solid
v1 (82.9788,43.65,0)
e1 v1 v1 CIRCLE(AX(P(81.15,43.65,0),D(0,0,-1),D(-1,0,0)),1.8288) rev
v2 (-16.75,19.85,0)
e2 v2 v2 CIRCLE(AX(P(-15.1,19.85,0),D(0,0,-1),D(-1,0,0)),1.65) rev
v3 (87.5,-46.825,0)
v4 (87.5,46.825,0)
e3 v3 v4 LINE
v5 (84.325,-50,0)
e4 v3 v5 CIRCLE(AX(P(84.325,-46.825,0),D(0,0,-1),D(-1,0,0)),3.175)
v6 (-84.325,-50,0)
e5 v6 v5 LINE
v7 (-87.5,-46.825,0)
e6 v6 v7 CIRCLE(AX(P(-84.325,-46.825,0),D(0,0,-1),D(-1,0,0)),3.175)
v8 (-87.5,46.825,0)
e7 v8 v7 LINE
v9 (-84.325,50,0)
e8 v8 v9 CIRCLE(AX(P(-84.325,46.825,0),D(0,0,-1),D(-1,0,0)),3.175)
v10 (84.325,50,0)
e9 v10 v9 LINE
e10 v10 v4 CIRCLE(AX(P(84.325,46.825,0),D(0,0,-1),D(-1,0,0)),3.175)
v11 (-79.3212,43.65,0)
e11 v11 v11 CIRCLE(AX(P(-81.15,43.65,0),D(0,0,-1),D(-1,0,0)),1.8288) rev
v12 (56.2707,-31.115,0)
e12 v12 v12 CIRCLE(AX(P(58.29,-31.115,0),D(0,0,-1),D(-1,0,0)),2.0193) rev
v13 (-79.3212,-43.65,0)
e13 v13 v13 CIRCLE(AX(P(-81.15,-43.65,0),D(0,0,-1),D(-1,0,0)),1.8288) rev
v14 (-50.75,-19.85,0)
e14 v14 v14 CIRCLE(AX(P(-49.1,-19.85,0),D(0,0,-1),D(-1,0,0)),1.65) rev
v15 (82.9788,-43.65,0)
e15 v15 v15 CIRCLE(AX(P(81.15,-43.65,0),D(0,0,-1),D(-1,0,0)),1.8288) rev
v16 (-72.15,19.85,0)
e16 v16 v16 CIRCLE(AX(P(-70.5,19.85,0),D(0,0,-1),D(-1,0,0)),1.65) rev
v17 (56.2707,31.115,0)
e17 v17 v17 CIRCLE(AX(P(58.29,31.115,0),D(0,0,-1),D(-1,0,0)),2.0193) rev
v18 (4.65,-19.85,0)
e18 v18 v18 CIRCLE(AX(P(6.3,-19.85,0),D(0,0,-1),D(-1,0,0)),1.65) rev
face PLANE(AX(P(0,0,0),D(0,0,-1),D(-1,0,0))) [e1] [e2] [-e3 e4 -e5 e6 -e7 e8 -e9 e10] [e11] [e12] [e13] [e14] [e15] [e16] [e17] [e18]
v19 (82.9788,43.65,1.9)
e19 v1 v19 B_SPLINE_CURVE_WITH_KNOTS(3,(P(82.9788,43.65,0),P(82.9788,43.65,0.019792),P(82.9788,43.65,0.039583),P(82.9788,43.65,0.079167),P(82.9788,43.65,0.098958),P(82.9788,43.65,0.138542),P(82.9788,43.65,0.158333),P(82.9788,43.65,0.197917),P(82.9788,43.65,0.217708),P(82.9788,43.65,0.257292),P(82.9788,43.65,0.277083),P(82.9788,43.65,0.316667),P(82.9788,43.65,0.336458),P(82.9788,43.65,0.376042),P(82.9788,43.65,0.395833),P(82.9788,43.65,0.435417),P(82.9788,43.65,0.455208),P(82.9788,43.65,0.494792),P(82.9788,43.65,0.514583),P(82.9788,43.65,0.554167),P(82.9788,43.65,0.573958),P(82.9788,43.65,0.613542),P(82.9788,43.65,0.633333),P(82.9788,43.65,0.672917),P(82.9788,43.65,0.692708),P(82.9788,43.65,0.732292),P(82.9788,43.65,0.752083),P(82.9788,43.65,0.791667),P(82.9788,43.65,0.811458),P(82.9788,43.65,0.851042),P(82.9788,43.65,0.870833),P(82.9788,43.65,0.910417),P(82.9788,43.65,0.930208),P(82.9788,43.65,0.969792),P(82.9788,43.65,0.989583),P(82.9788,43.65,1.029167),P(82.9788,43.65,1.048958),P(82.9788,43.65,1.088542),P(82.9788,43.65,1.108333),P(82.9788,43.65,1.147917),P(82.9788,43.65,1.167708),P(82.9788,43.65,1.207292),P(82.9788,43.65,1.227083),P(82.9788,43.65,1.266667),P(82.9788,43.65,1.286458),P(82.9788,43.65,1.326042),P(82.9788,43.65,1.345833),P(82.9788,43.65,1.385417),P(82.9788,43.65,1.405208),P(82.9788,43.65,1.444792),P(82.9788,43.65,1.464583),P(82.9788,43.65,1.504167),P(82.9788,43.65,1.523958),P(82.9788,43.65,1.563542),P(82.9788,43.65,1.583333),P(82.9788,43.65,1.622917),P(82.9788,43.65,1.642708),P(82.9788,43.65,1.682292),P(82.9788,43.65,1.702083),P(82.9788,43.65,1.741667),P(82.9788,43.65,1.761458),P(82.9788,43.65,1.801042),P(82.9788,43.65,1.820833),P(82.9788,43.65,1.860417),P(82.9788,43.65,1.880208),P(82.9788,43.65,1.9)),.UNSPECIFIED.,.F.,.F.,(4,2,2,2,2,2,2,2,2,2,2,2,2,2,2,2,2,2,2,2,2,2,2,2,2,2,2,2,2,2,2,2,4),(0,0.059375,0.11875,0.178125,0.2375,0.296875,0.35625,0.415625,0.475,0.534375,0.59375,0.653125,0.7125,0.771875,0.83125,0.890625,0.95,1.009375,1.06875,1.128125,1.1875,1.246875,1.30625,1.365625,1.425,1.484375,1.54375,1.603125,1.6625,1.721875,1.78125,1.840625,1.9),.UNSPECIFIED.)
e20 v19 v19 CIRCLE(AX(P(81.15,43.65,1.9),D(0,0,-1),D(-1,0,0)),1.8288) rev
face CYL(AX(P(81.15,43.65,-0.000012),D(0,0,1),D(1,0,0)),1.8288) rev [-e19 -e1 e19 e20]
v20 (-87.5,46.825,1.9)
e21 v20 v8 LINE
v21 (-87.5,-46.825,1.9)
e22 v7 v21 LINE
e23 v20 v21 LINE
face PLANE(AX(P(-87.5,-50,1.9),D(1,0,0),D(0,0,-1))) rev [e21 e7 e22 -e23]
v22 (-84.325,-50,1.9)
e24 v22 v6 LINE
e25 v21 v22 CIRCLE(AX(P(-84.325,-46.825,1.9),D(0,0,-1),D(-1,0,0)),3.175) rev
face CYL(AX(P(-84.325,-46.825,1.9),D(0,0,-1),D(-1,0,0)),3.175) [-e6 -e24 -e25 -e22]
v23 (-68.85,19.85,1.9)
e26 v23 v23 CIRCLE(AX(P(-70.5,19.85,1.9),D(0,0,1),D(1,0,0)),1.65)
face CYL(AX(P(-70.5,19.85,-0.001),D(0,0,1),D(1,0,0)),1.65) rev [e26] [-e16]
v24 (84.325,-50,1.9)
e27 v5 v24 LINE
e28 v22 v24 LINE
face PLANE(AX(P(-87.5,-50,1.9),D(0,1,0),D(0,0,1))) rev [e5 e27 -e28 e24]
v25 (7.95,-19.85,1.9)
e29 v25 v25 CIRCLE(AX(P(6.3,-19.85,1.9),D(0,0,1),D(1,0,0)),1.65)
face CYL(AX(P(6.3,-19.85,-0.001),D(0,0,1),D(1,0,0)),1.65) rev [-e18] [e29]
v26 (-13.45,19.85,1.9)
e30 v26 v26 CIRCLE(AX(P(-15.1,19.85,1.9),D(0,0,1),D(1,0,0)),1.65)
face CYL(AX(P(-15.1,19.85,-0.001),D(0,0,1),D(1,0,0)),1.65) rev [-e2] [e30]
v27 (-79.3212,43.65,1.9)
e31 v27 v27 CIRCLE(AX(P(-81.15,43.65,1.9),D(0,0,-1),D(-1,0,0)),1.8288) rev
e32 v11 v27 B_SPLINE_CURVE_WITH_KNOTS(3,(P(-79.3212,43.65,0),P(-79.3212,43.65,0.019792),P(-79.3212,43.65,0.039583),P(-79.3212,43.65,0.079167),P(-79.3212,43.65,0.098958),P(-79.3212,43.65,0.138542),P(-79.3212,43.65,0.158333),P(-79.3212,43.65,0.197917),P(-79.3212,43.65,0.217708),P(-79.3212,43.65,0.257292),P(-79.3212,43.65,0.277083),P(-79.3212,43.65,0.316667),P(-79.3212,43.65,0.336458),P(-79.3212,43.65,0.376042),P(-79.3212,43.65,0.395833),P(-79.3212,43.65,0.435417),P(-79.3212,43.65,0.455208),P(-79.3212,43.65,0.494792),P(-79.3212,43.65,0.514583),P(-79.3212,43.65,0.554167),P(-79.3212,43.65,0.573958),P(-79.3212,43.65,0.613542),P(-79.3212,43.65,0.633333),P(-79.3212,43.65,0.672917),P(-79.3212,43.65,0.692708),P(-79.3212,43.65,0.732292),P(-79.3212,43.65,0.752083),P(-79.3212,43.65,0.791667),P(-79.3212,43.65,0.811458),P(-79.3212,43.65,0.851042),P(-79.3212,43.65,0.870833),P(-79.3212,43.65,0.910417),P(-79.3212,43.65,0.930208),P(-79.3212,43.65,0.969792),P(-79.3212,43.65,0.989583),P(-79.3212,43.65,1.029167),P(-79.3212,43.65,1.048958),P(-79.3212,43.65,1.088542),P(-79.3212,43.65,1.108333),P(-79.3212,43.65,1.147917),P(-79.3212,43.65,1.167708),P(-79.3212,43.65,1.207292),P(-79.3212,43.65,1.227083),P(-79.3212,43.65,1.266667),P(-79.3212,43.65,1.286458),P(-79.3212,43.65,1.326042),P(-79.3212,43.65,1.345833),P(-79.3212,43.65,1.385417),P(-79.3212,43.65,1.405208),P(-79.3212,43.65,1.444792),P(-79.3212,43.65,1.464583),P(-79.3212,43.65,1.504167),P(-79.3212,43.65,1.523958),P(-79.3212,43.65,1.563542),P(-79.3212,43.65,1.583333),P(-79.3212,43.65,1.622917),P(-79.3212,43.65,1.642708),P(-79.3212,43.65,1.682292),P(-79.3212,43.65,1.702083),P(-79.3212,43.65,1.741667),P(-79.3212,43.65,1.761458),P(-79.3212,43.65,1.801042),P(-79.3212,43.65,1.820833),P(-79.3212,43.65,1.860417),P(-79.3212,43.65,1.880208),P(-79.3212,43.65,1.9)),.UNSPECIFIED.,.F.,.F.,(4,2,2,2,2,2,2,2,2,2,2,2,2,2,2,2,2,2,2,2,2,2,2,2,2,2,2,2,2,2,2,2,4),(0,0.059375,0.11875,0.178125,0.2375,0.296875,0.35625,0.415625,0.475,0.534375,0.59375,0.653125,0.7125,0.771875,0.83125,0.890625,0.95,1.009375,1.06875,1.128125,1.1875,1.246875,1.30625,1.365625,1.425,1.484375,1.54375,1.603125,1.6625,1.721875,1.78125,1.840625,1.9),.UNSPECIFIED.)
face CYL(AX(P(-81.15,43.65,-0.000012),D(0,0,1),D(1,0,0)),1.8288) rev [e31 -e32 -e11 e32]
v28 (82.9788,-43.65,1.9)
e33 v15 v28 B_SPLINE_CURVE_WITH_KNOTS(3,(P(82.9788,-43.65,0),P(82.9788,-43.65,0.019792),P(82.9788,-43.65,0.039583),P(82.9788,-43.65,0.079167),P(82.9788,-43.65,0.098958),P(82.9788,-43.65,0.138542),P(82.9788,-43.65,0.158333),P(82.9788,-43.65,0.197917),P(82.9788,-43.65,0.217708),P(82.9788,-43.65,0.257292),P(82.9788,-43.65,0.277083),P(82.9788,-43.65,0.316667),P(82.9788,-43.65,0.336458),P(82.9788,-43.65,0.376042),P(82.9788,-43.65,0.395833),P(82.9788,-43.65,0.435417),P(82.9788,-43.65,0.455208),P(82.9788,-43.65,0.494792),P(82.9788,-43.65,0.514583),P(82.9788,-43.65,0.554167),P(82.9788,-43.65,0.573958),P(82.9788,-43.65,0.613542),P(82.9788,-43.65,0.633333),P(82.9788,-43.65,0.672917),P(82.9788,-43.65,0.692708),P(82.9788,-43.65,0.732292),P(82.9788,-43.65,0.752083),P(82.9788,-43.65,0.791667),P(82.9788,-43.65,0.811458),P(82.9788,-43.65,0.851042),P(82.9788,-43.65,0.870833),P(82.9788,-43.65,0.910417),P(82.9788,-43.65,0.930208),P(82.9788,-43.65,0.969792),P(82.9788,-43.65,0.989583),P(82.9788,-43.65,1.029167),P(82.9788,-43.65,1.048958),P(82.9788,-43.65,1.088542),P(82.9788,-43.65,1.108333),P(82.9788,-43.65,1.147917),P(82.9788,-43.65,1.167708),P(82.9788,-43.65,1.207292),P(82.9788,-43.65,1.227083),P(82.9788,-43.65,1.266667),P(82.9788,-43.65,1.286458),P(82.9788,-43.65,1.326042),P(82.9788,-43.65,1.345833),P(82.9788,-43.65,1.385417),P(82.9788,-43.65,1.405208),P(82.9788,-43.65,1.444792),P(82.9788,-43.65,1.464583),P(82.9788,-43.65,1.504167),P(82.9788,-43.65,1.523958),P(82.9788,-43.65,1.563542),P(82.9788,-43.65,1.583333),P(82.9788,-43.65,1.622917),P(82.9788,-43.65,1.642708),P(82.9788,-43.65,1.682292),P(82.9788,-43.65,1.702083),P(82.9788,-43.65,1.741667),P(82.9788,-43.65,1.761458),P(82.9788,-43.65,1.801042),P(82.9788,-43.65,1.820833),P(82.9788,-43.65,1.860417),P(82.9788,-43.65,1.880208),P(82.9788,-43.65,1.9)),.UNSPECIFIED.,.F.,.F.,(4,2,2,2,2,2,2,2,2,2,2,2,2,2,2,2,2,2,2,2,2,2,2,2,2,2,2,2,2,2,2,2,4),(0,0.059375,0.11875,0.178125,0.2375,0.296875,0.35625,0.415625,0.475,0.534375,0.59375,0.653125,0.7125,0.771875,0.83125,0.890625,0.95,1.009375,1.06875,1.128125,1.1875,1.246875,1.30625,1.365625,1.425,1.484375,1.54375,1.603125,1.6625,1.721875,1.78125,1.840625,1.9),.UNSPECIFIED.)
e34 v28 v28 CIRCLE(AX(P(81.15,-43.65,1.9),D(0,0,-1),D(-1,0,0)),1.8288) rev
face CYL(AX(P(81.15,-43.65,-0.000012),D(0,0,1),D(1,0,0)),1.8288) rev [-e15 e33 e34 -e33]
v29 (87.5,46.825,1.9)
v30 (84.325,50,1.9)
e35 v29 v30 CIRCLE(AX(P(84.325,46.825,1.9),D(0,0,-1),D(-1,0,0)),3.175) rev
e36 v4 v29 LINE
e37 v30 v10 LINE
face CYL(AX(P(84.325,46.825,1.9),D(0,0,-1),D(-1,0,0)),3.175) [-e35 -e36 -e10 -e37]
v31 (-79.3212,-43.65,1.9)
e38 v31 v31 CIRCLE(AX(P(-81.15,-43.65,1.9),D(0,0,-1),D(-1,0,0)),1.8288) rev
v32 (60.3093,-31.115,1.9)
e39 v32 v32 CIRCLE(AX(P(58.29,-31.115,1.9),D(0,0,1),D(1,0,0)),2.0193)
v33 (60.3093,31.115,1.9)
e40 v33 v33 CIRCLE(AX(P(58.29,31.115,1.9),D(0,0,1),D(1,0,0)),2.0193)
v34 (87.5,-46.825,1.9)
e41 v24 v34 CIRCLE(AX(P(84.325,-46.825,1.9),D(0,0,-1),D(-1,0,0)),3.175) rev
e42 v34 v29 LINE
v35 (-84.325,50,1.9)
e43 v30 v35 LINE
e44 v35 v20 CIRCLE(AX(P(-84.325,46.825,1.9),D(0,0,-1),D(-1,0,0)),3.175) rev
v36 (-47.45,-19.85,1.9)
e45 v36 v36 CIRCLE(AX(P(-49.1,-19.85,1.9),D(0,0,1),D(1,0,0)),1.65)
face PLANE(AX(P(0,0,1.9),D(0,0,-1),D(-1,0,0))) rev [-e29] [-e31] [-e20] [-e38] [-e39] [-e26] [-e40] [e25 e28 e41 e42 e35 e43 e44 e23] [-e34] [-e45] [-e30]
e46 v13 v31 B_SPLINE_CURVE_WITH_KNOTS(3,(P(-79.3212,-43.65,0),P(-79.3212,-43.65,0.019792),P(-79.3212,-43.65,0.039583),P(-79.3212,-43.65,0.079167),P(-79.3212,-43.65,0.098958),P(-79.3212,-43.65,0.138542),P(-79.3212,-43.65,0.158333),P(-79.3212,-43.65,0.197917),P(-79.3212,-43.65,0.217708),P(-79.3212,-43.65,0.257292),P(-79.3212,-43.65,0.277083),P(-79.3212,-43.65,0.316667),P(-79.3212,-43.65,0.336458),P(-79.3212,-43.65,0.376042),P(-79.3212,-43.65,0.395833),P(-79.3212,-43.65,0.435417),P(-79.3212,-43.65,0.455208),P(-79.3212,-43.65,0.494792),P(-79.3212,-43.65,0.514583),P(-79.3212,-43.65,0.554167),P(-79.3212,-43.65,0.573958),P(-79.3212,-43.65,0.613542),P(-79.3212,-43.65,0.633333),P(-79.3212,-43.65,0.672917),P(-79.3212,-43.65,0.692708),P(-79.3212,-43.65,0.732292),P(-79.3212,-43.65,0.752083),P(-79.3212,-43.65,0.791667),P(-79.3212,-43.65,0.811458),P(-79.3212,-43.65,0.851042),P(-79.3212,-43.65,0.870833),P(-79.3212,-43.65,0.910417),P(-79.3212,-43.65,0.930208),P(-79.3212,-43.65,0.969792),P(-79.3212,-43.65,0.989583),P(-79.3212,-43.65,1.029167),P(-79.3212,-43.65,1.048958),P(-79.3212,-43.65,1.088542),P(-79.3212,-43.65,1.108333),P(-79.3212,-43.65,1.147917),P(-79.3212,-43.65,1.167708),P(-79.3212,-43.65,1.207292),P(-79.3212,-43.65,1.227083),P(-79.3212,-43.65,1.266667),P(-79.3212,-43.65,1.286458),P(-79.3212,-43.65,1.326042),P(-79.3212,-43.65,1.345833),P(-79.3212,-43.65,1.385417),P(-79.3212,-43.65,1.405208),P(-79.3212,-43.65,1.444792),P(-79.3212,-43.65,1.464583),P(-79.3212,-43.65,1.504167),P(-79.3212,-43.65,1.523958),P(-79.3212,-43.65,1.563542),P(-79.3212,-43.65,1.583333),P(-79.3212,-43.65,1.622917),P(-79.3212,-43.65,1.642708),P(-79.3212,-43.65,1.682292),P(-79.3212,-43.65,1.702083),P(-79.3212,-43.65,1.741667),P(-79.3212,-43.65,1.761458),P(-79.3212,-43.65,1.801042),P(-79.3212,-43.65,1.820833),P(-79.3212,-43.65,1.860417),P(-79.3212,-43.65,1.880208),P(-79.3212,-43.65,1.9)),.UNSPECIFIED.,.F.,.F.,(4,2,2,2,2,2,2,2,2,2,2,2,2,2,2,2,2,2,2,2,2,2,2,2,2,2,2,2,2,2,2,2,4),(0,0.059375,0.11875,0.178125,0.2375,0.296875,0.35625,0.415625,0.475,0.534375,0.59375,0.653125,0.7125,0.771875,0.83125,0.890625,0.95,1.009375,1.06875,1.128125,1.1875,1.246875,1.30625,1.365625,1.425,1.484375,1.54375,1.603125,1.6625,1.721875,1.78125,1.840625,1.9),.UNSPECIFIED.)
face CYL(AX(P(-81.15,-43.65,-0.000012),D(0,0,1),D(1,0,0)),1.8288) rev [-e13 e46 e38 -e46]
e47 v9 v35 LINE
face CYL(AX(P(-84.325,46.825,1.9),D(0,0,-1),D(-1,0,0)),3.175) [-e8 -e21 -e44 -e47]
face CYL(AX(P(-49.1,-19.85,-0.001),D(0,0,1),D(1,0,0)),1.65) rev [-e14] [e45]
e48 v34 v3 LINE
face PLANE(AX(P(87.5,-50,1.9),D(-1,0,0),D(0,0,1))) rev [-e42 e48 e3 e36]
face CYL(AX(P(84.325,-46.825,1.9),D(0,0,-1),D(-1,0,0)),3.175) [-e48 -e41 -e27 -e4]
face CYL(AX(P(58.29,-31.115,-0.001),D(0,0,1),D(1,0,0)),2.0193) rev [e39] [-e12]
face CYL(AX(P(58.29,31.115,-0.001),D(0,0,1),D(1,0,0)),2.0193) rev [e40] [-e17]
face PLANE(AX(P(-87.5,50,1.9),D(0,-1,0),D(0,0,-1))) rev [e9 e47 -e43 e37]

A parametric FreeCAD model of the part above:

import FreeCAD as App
import Part
import Sketcher


def edges_at(feature, points):
    """Names of the edges that pass closest to the given points."""
    edges = feature.Shape.Edges
    near = lambda p: min(range(len(edges)), key=lambda i: edges[i].distToShape(Part.Vertex(*p))[0])
    return sorted({f"Edge{near(p) + 1}" for p in points})


def add_polygon(sketch, points):
    """Adds a closed chain of lines whose ends are joined by coincident constraints."""
    first, n = sketch.GeometryCount, len(points)
    for a, b in zip(points, points[1:] + points[:1]):
        sketch.addGeometry(Part.LineSegment(App.Vector(*a, 0), App.Vector(*b, 0)), False)
    for i in range(n):
        sketch.addConstraint(Sketcher.Constraint("Coincident", first + i, 2, first + (i + 1) % n, 1))

doc = App.newDocument("Part")
body = doc.addObject("PartDesign::Body", "Body")

# Sketch on XY plane
sketch1 = doc.addObject("Sketcher::SketchObject", "Sketch")
body.addObject(sketch1)
sketch1.AttachmentSupport = (doc.XY_Plane, [""])
sketch1.MapMode = "FlatFace"
add_polygon(sketch1, [(-88, 50), (-88, -50), (88, -50), (88, 50)])  # lines 0-3
sketch1.addConstraint([
    Sketcher.Constraint("Vertical", 0),
    Sketcher.Constraint("Horizontal", 1),
    Sketcher.Constraint("Vertical", 2),
    Sketcher.Constraint("Horizontal", 3),
    Sketcher.Constraint("Symmetric", 0, 2, 2, 2, -1, 1),
    Sketcher.Constraint("DistanceX", 1, 1, 1, 2, 175.0),
    Sketcher.Constraint("DistanceY", 0, 2, 0, 1, 100.0),
])
pad1 = doc.addObject("PartDesign::Pad", "Pad")
body.addObject(pad1)
pad1.Profile = sketch1
pad1.Length = 1.9

# Sketch on XY plane
sketch2 = doc.addObject("Sketcher::SketchObject", "Sketch001")
body.addObject(sketch2)
sketch2.AttachmentSupport = (doc.XY_Plane, [""])
sketch2.MapMode = "FlatFace"
sketch2.addGeometry(Part.Circle(App.Vector(81.2, 43.6, 0), App.Vector(0, 0, 1), 1.8), False)
sketch2.addConstraint([
    Sketcher.Constraint("Diameter", 0, 3.6576),
    Sketcher.Constraint("DistanceX", -1, 1, 0, 3, 81.15),
    Sketcher.Constraint("DistanceY", -1, 1, 0, 3, 43.65),
])
pocket1 = doc.addObject("PartDesign::Pocket", "Pocket")
body.addObject(pocket1)
pocket1.Profile = sketch2
pocket1.Type = "UpToFirst"
pocket1.Reversed = True

# Sketch on XY plane
sketch3 = doc.addObject("Sketcher::SketchObject", "Sketch002")
body.addObject(sketch3)
sketch3.AttachmentSupport = (doc.XY_Plane, [""])
sketch3.MapMode = "FlatFace"
sketch3.addGeometry(Part.Circle(App.Vector(81.2, -43.6, 0), App.Vector(0, 0, 1), 1.8), False)
sketch3.addConstraint([
    Sketcher.Constraint("Diameter", 0, 3.6576),
    Sketcher.Constraint("DistanceX", -1, 1, 0, 3, 81.15),
    Sketcher.Constraint("DistanceY", 0, 3, -1, 1, 43.65),
])
pocket2 = doc.addObject("PartDesign::Pocket", "Pocket001")
body.addObject(pocket2)
pocket2.Profile = sketch3
pocket2.Type = "UpToFirst"
pocket2.Reversed = True

# Sketch on XY plane
sketch4 = doc.addObject("Sketcher::SketchObject", "Sketch003")
body.addObject(sketch4)
sketch4.AttachmentSupport = (doc.XY_Plane, [""])
sketch4.MapMode = "FlatFace"
sketch4.addGeometry(Part.Circle(App.Vector(-81.2, 43.6, 0), App.Vector(0, 0, 1), 1.8), False)
sketch4.addConstraint([
    Sketcher.Constraint("Diameter", 0, 3.6576),
    Sketcher.Constraint("DistanceX", 0, 3, -1, 1, 81.15),
    Sketcher.Constraint("DistanceY", -1, 1, 0, 3, 43.65),
])
pocket3 = doc.addObject("PartDesign::Pocket", "Pocket002")
body.addObject(pocket3)
pocket3.Profile = sketch4
pocket3.Type = "UpToFirst"
pocket3.Reversed = True

# Sketch on XY plane
sketch5 = doc.addObject("Sketcher::SketchObject", "Sketch004")
body.addObject(sketch5)
sketch5.AttachmentSupport = (doc.XY_Plane, [""])
sketch5.MapMode = "FlatFace"
sketch5.addGeometry(Part.Circle(App.Vector(-81.2, -43.6, 0), App.Vector(0, 0, 1), 1.8), False)
sketch5.addConstraint([
    Sketcher.Constraint("Diameter", 0, 3.6576),
    Sketcher.Constraint("DistanceX", 0, 3, -1, 1, 81.15),
    Sketcher.Constraint("DistanceY", 0, 3, -1, 1, 43.65),
])
pocket4 = doc.addObject("PartDesign::Pocket", "Pocket003")
body.addObject(pocket4)
pocket4.Profile = sketch5
pocket4.Type = "UpToFirst"
pocket4.Reversed = True

# Sketch on XY plane
sketch6 = doc.addObject("Sketcher::SketchObject", "Sketch005")
body.addObject(sketch6)
sketch6.AttachmentSupport = (doc.XY_Plane, [""])
sketch6.MapMode = "FlatFace"
sketch6.addGeometry([
    Part.Circle(App.Vector(81.2, 43.6, 0), App.Vector(0, 0, 1), 1.8),
    Part.Circle(App.Vector(81.2, -43.6, 0), App.Vector(0, 0, 1), 1.8),
    Part.Circle(App.Vector(-81.2, 43.6, 0), App.Vector(0, 0, 1), 1.8),
    Part.Circle(App.Vector(-81.2, -43.6, 0), App.Vector(0, 0, 1), 1.8),
], False)
sketch6.addConstraint([
    Sketcher.Constraint("Equal", 0, 1),
    Sketcher.Constraint("Equal", 1, 2),
    Sketcher.Constraint("Equal", 2, 3),
    Sketcher.Constraint("Symmetric", 1, 3, 2, 3, -1, 1),
    Sketcher.Constraint("Symmetric", 0, 3, 3, 3, -1, 1),
    Sketcher.Constraint("Symmetric", 0, 3, 2, 3, -2),
    Sketcher.Constraint("Diameter", 0, 3.6576),
    Sketcher.Constraint("DistanceY", 1, 3, 0, 3, 87.3),
    Sketcher.Constraint("DistanceX", 2, 3, 0, 3, 162.3),
])
pocket5 = doc.addObject("PartDesign::Pocket", "Pocket004")
body.addObject(pocket5)
pocket5.Profile = sketch6
pocket5.Length = 101.796131
doc.recompute()

fillet = doc.addObject("PartDesign::Fillet", "Fillet")
body.addObject(fillet)
fillet.Base = (pocket5, edges_at(pocket5, [
    (87.5, -50, 0.95),
    (-87.5, -50, 0.95),
    (-87.5, 50, 0.95),
    (87.5, 50, 0.95),
]))
fillet.Radius = 3.175

# Sketch on XY plane
sketch7 = doc.addObject("Sketcher::SketchObject", "Sketch006")
body.addObject(sketch7)
sketch7.AttachmentSupport = (doc.XY_Plane, [""])
sketch7.MapMode = "FlatFace"
sketch7.AttachmentOffset = App.Placement(App.Vector(0, 0, 1.9), App.Rotation())
sketch7.addGeometry(Part.Circle(App.Vector(-49.1, -19.9, 0), App.Vector(0, 0, 1), 1.6), False)
sketch7.addConstraint([
    Sketcher.Constraint("Diameter", 0, 3.3),
    Sketcher.Constraint("DistanceX", 0, 3, -1, 1, 49.1),
    Sketcher.Constraint("DistanceY", 0, 3, -1, 1, 19.85),
])
pocket6 = doc.addObject("PartDesign::Pocket", "Pocket005")
body.addObject(pocket6)
pocket6.Profile = sketch7
pocket6.Type = "UpToFirst"

# Sketch on XY plane
sketch8 = doc.addObject("Sketcher::SketchObject", "Sketch007")
body.addObject(sketch8)
sketch8.AttachmentSupport = (doc.XY_Plane, [""])
sketch8.MapMode = "FlatFace"
sketch8.AttachmentOffset = App.Placement(App.Vector(0, 0, 1.9), App.Rotation())
sketch8.addGeometry(Part.Circle(App.Vector(-70.5, 19.9, 0), App.Vector(0, 0, 1), 1.6), False)
sketch8.addConstraint([
    Sketcher.Constraint("Diameter", 0, 3.3),
    Sketcher.Constraint("DistanceX", 0, 3, -1, 1, 70.5),
    Sketcher.Constraint("DistanceY", -1, 1, 0, 3, 19.85),
])
pocket7 = doc.addObject("PartDesign::Pocket", "Pocket006")
body.addObject(pocket7)
pocket7.Profile = sketch8
pocket7.Type = "UpToFirst"

# Sketch on XY plane
sketch9 = doc.addObject("Sketcher::SketchObject", "Sketch008")
body.addObject(sketch9)
sketch9.AttachmentSupport = (doc.XY_Plane, [""])
sketch9.MapMode = "FlatFace"
sketch9.AttachmentOffset = App.Placement(App.Vector(0, 0, 1.9), App.Rotation())
sketch9.addGeometry(Part.Circle(App.Vector(6.3, -19.9, 0), App.Vector(0, 0, 1), 1.6), False)
sketch9.addConstraint([
    Sketcher.Constraint("Diameter", 0, 3.3),
    Sketcher.Constraint("DistanceX", -1, 1, 0, 3, 6.3),
    Sketcher.Constraint("DistanceY", 0, 3, -1, 1, 19.85),
])
pocket8 = doc.addObject("PartDesign::Pocket", "Pocket007")
body.addObject(pocket8)
pocket8.Profile = sketch9
pocket8.Type = "UpToFirst"

# Sketch on XY plane
sketch10 = doc.addObject("Sketcher::SketchObject", "Sketch009")
body.addObject(sketch10)
sketch10.AttachmentSupport = (doc.XY_Plane, [""])
sketch10.MapMode = "FlatFace"
sketch10.AttachmentOffset = App.Placement(App.Vector(0, 0, 1.9), App.Rotation())
sketch10.addGeometry(Part.Circle(App.Vector(-15.1, 19.9, 0), App.Vector(0, 0, 1), 1.6), False)
sketch10.addConstraint([
    Sketcher.Constraint("Diameter", 0, 3.3),
    Sketcher.Constraint("DistanceX", 0, 3, -1, 1, 15.1),
    Sketcher.Constraint("DistanceY", -1, 1, 0, 3, 19.85),
])
pocket9 = doc.addObject("PartDesign::Pocket", "Pocket008")
body.addObject(pocket9)
pocket9.Profile = sketch10
pocket9.Type = "UpToFirst"

# Sketch on XY plane
sketch11 = doc.addObject("Sketcher::SketchObject", "Sketch010")
body.addObject(sketch11)
sketch11.AttachmentSupport = (doc.XY_Plane, [""])
sketch11.MapMode = "FlatFace"
sketch11.AttachmentOffset = App.Placement(App.Vector(0, 0, 1.9), App.Rotation())
sketch11.addGeometry(Part.Circle(App.Vector(58.3, -31.1, 0), App.Vector(0, 0, 1), 2), False)
sketch11.addConstraint([
    Sketcher.Constraint("Diameter", 0, 4.0386),
    Sketcher.Constraint("DistanceX", -1, 1, 0, 3, 58.29),
    Sketcher.Constraint("DistanceY", 0, 3, -1, 1, 31.115),
])
pocket10 = doc.addObject("PartDesign::Pocket", "Pocket009")
body.addObject(pocket10)
pocket10.Profile = sketch11
pocket10.Type = "UpToFirst"

# Sketch on XY plane
sketch12 = doc.addObject("Sketcher::SketchObject", "Sketch011")
body.addObject(sketch12)
sketch12.AttachmentSupport = (doc.XY_Plane, [""])
sketch12.MapMode = "FlatFace"
sketch12.AttachmentOffset = App.Placement(App.Vector(0, 0, 1.9), App.Rotation())
sketch12.addGeometry(Part.Circle(App.Vector(58.3, 31.1, 0), App.Vector(0, 0, 1), 2), False)
sketch12.addConstraint([
    Sketcher.Constraint("Diameter", 0, 4.0386),
    Sketcher.Constraint("DistanceX", -1, 1, 0, 3, 58.29),
    Sketcher.Constraint("DistanceY", -1, 1, 0, 3, 31.115),
])
pocket11 = doc.addObject("PartDesign::Pocket", "Pocket010")
body.addObject(pocket11)
pocket11.Profile = sketch12
pocket11.Type = "UpToFirst"

doc.recompute()
